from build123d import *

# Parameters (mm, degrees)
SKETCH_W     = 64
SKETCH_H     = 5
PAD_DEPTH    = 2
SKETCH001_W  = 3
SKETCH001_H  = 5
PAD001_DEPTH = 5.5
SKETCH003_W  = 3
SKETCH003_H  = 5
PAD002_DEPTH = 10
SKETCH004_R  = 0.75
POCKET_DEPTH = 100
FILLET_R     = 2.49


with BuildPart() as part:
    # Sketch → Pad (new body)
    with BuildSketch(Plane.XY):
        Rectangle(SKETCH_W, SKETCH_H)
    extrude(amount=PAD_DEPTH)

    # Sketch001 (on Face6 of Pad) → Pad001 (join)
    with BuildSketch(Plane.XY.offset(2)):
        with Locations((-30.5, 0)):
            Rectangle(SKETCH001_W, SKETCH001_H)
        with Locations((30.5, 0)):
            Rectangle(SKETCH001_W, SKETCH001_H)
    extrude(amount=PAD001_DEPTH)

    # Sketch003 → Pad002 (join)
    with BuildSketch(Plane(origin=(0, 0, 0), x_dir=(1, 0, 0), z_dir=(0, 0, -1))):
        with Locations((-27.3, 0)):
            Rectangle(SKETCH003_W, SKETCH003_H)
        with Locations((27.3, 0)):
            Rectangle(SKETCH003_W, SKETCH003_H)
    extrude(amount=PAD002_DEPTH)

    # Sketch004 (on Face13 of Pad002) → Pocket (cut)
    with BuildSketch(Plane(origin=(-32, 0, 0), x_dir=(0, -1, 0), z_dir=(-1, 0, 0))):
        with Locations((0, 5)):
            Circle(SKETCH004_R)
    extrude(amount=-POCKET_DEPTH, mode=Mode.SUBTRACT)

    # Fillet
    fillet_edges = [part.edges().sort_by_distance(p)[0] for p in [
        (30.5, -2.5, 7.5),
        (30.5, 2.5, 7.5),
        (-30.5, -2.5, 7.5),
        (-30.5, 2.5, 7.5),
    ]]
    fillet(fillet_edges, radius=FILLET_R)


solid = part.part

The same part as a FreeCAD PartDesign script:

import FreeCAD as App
import Part
import Sketcher

V = App.Vector


def edges_at(feature, points):
    """Names of the edges that pass closest to the given points."""
    edges = feature.Shape.Edges
    near = lambda p: min(range(len(edges)), key=lambda i: edges[i].distToShape(Part.Vertex(*p))[0])
    return sorted({f"Edge{near(p) + 1}" for p in points})


def add_polygon(sketch, points):
    """Adds a closed chain of lines whose ends are joined by coincident constraints."""
    first, n = sketch.GeometryCount, len(points)
    for a, b in zip(points, points[1:] + points[:1]):
        sketch.addGeometry(Part.LineSegment(App.Vector(*a, 0), App.Vector(*b, 0)), False)
    for i in range(n):
        sketch.addConstraint(Sketcher.Constraint("Coincident", first + i, 2, first + (i + 1) % n, 1))

doc = App.newDocument("Part")
body = doc.addObject("PartDesign::Body", "Body")

# Sketch on XY plane
sketch1 = doc.addObject("Sketcher::SketchObject", "Sketch")
body.addObject(sketch1)
sketch1.AttachmentSupport = (doc.XY_Plane, [""])
sketch1.MapMode = "FlatFace"
add_polygon(sketch1, [(-32, 2), (-32, -2), (32, -2), (32, 2)])  # lines 0-3
sketch1.addConstraint([
    Sketcher.Constraint("Vertical", 0),
    Sketcher.Constraint("Horizontal", 1),
    Sketcher.Constraint("Vertical", 2),
    Sketcher.Constraint("Horizontal", 3),
    Sketcher.Constraint("Symmetric", 0, 2, 2, 2, -1, 1),
    Sketcher.Constraint("DistanceX", 1, 1, 1, 2, 64.0),
    Sketcher.Constraint("DistanceY", 0, 2, 0, 1, 5.0),
])
pad1 = doc.addObject("PartDesign::Pad", "Pad")
body.addObject(pad1)
pad1.Profile = sketch1
pad1.Length = 2

# Sketch on XY plane
sketch2 = doc.addObject("Sketcher::SketchObject", "Sketch001")
body.addObject(sketch2)
sketch2.AttachmentSupport = (doc.XY_Plane, [""])
sketch2.MapMode = "FlatFace"
sketch2.AttachmentOffset = App.Placement(V(0, 0, 2), App.Rotation())
add_polygon(sketch2, [(-32, 2.5), (-32, -2.5), (-29, -2.5), (-29, 2.5)])  # lines 0-3
add_polygon(sketch2, [(29, 2.5), (29, -2.5), (32, -2.5), (32, 2.5)])  # lines 4-7
sketch2.addConstraint([
    Sketcher.Constraint("Vertical", 0),
    Sketcher.Constraint("Horizontal", 1),
    Sketcher.Constraint("Vertical", 2),
    Sketcher.Constraint("Horizontal", 3),
    Sketcher.Constraint("Vertical", 4),
    Sketcher.Constraint("Horizontal", 5),
    Sketcher.Constraint("Vertical", 6),
    Sketcher.Constraint("Horizontal", 7),
    Sketcher.Constraint("Symmetric", 2, 2, 4, 2, -1, 1),
    Sketcher.Constraint("Symmetric", 0, 2, 6, 2, -1, 1),
    Sketcher.Constraint("Horizontal", 1, 2, 4, 2),
    Sketcher.Constraint("DistanceX", 1, 1, 1, 2, 3.0),
    Sketcher.Constraint("DistanceY", 0, 2, 0, 1, 5.0),
    Sketcher.Constraint("DistanceX", 0, 2, -1, 1, 32.0),
])
pad2 = doc.addObject("PartDesign::Pad", "Pad001")
body.addObject(pad2)
pad2.Profile = sketch2
pad2.Length = 5.5

# Sketch on XY plane
sketch3 = doc.addObject("Sketcher::SketchObject", "Sketch002")
body.addObject(sketch3)
sketch3.AttachmentSupport = (doc.XY_Plane, [""])
sketch3.MapMode = "FlatFace"
add_polygon(sketch3, [(-28.8, -2.5), (-28.8, 2.5), (-25.8, 2.5), (-25.8, -2.5)])  # lines 0-3
add_polygon(sketch3, [(25.8, -2.5), (25.8, 2.5), (28.8, 2.5), (28.8, -2.5)])  # lines 4-7
sketch3.addConstraint([
    Sketcher.Constraint("Vertical", 0),
    Sketcher.Constraint("Horizontal", 1),
    Sketcher.Constraint("Vertical", 2),
    Sketcher.Constraint("Horizontal", 3),
    Sketcher.Constraint("Vertical", 4),
    Sketcher.Constraint("Horizontal", 5),
    Sketcher.Constraint("Vertical", 6),
    Sketcher.Constraint("Horizontal", 7),
    Sketcher.Constraint("Symmetric", 2, 2, 4, 2, -1, 1),
    Sketcher.Constraint("Symmetric", 0, 2, 6, 2, -1, 1),
    Sketcher.Constraint("Horizontal", 1, 2, 4, 2),
    Sketcher.Constraint("DistanceX", 1, 1, 1, 2, 3.0),
    Sketcher.Constraint("DistanceY", 0, 1, 0, 2, 5.0),
    Sketcher.Constraint("DistanceX", 0, 2, -1, 1, 28.8),
])
pad3 = doc.addObject("PartDesign::Pad", "Pad002")
body.addObject(pad3)
pad3.Profile = sketch3
pad3.Length = 10
pad3.Reversed = True

# Sketch on YZ plane
sketch4 = doc.addObject("Sketcher::SketchObject", "Sketch003")
body.addObject(sketch4)
sketch4.AttachmentSupport = (doc.YZ_Plane, [""])
sketch4.MapMode = "FlatFace"
sketch4.AttachmentOffset = App.Placement(V(0, 0, -32), App.Rotation())
sketch4.addGeometry(Part.Circle(V(0, 5, 0), V(0, 0, 1), 0.8), False)
sketch4.addConstraint([
    Sketcher.Constraint("PointOnObject", 0, 3, -2),
    Sketcher.Constraint("Diameter", 0, 1.5),
    Sketcher.Constraint("DistanceY", -1, 1, 0, 3, 5.0),
])
pocket1 = doc.addObject("PartDesign::Pocket", "Pocket")
body.addObject(pocket1)
pocket1.Profile = sketch4
pocket1.Length = 100
pocket1.Reversed = True
doc.recompute()

fillet = doc.addObject("PartDesign::Fillet", "Fillet")
body.addObject(fillet)
fillet.Base = (pocket1, edges_at(pocket1, [
    (30.5, -2.5, 7.5),
    (30.5, 2.5, 7.5),
    (-30.5, -2.5, 7.5),
    (-30.5, 2.5, 7.5),
]))
fillet.Radius = 2.49

doc.recompute()
